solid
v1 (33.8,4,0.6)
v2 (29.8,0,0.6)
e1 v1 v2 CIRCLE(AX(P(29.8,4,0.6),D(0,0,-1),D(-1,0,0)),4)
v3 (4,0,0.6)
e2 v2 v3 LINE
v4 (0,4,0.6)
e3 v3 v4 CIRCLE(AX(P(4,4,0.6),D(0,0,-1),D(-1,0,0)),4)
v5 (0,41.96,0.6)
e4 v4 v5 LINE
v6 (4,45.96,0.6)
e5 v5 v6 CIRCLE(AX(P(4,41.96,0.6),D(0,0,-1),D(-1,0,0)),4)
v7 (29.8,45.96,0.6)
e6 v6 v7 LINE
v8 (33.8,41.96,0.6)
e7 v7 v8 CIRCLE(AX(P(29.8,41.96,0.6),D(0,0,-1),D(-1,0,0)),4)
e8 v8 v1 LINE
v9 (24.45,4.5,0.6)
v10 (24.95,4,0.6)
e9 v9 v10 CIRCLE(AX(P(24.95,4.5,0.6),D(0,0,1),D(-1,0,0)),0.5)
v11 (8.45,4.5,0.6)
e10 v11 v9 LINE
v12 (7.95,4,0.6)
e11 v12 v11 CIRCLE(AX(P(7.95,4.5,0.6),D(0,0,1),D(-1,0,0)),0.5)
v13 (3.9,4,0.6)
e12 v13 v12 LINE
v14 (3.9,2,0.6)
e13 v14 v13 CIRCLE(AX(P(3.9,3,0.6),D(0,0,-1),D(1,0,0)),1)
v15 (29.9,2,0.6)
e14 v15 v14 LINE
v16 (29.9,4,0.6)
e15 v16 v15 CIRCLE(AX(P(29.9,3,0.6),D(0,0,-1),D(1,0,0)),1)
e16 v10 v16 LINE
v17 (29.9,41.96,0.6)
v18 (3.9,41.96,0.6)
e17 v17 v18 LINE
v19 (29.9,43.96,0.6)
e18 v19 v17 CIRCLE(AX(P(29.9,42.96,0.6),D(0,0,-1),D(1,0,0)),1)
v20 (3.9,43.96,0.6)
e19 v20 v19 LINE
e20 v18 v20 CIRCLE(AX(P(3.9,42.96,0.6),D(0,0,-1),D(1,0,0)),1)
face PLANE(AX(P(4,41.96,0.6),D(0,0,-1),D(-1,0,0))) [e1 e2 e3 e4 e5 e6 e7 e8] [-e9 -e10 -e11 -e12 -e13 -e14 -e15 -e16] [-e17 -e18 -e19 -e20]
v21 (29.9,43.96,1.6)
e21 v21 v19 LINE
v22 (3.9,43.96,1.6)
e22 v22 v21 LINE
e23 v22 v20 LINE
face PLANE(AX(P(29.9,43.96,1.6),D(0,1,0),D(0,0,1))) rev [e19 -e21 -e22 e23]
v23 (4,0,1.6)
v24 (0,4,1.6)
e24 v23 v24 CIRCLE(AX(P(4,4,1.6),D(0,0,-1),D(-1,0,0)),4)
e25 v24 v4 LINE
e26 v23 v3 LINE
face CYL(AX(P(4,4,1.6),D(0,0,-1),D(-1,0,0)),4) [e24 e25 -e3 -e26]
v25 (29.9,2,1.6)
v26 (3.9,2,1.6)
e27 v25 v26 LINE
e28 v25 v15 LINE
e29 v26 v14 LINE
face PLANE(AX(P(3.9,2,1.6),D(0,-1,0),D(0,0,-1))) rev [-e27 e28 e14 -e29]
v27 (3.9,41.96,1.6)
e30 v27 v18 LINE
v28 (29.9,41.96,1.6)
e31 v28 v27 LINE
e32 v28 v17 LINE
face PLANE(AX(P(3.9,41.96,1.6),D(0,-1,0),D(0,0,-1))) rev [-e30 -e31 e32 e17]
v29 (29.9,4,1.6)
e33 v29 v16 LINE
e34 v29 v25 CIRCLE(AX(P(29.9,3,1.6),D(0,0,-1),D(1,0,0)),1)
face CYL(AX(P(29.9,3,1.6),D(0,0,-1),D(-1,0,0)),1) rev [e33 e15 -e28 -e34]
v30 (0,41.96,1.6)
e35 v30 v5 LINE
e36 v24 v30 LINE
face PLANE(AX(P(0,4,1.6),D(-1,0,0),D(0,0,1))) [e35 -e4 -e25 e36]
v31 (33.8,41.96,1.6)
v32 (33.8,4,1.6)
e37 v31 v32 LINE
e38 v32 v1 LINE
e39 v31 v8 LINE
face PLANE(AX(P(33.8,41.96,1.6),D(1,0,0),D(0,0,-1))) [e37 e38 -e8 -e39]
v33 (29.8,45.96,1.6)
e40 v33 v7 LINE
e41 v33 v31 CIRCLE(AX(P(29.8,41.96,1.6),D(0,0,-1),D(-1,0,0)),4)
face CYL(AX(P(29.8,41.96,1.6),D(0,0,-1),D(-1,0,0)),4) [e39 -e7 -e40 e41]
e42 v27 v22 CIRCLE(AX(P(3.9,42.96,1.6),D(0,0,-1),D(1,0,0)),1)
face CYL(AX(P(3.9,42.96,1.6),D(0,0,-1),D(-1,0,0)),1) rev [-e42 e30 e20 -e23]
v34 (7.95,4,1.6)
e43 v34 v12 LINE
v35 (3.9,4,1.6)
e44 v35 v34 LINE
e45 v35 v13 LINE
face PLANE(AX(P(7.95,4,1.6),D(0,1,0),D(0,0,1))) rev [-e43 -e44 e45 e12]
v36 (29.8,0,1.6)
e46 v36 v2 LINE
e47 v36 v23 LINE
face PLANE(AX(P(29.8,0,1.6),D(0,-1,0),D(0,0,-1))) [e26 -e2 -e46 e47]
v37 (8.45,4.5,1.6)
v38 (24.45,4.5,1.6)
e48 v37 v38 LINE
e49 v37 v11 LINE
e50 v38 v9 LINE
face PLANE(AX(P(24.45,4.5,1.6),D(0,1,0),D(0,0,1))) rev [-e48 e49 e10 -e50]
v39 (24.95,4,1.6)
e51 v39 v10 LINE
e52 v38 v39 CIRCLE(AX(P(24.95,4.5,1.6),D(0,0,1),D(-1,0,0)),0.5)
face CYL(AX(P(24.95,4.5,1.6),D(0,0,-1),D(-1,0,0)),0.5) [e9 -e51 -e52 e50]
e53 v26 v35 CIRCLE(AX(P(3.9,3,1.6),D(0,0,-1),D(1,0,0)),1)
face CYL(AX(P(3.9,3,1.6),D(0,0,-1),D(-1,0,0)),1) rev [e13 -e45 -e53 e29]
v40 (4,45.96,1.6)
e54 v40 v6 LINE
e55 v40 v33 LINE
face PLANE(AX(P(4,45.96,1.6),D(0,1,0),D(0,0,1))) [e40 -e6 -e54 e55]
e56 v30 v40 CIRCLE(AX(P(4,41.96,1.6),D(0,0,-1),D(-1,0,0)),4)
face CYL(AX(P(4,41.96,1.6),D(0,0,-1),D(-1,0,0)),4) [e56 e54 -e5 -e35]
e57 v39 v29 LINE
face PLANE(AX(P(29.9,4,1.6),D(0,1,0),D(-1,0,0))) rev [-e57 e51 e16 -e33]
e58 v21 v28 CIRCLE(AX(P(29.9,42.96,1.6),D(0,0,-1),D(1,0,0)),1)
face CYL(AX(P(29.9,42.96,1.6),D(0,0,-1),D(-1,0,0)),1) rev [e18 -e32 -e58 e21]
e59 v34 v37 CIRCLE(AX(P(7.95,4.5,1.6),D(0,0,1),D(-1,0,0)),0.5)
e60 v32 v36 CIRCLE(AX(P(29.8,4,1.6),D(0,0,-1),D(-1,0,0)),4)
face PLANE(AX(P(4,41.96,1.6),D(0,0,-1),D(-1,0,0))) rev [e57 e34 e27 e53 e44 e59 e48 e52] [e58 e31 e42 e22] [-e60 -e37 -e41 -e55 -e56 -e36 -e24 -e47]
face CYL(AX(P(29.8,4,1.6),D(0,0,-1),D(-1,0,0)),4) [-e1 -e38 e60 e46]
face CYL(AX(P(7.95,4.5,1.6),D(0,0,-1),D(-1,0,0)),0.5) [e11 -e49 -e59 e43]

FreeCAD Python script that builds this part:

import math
import FreeCAD as App
import Part
import Sketcher
Q = App.Units.Quantity

doc = App.newDocument("Part")
body = doc.addObject("PartDesign::Body", "Body")

sketch1 = body.newObject("Sketcher::SketchObject", "Sketch")
sketch1.AttachmentSupport = (doc.getObject("XY_Plane"), [""])
sketch1.MapMode = "FlatFace"
sketch1.AttachmentOffset = App.Placement(App.Vector(0, 0, 0.6), App.Rotation())
sketch1.addGeometry([
    Part.LineSegment(App.Vector(4, 45.96, 0), App.Vector(29.8, 45.96, 0)),
    Part.ArcOfCircle(Part.Circle(App.Vector(29.8, 41.96, 0), App.Vector(0, 0, 1), 4), math.radians(0), math.radians(90)),
    Part.LineSegment(App.Vector(33.8, 41.96, 0), App.Vector(33.8, 4, 0)),
    Part.ArcOfCircle(Part.Circle(App.Vector(29.8, 4, 0), App.Vector(0, 0, 1), 4), math.radians(-90), math.radians(0)),
    Part.LineSegment(App.Vector(29.8, 0, 0), App.Vector(4, 0, 0)),
    Part.ArcOfCircle(Part.Circle(App.Vector(4, 4, 0), App.Vector(0, 0, 1), 4), math.radians(180), math.radians(270)),
    Part.LineSegment(App.Vector(0, 4, 0), App.Vector(0, 41.96, 0)),
    Part.ArcOfCircle(Part.Circle(App.Vector(4, 41.96, 0), App.Vector(0, 0, 1), 4), math.radians(90), math.radians(180)),
    Part.ArcOfCircle(Part.Circle(App.Vector(7.95, 4.5, 0), App.Vector(0, 0, 1), 0.5), math.radians(-90), math.radians(0)),
    Part.LineSegment(App.Vector(7.95, 4, 0), App.Vector(3.9, 4, 0)),
    Part.ArcOfCircle(Part.Circle(App.Vector(3.9, 3, 0), App.Vector(0, 0, 1), 1), math.radians(90), math.radians(270)),
    Part.LineSegment(App.Vector(3.9, 2, 0), App.Vector(29.9, 2, 0)),
    Part.ArcOfCircle(Part.Circle(App.Vector(29.9, 3, 0), App.Vector(0, 0, 1), 1), math.radians(-90), math.radians(90)),
    Part.LineSegment(App.Vector(29.9, 4, 0), App.Vector(24.95, 4, 0)),
    Part.ArcOfCircle(Part.Circle(App.Vector(24.95, 4.5, 0), App.Vector(0, 0, 1), 0.5), math.radians(180), math.radians(270)),
    Part.LineSegment(App.Vector(24.45, 4.5, 0), App.Vector(8.45, 4.5, 0)),
    Part.ArcOfCircle(Part.Circle(App.Vector(3.9, 42.96, 0), App.Vector(0, 0, 1), 1), math.radians(90), math.radians(270)),
    Part.LineSegment(App.Vector(3.9, 41.96, 0), App.Vector(29.9, 41.96, 0)),
    Part.ArcOfCircle(Part.Circle(App.Vector(29.9, 42.96, 0), App.Vector(0, 0, 1), 1), math.radians(-90), math.radians(90)),
    Part.LineSegment(App.Vector(29.9, 43.96, 0), App.Vector(3.9, 43.96, 0)),
], False)
sketch1.addConstraint([
    Sketcher.Constraint("Tangent", 0, 2, 1, 2),
    Sketcher.Constraint("Tangent", 1, 1, 2, 1),
    Sketcher.Constraint("Tangent", 2, 2, 3, 2),
    Sketcher.Constraint("Tangent", 3, 1, 4, 1),
    Sketcher.Constraint("Tangent", 4, 2, 5, 2),
    Sketcher.Constraint("Tangent", 5, 1, 6, 1),
    Sketcher.Constraint("Tangent", 6, 2, 7, 2),
    Sketcher.Constraint("Tangent", 7, 1, 0, 1),
    Sketcher.Constraint("Tangent", 8, 1, 9, 1),
    Sketcher.Constraint("Tangent", 9, 2, 10, 1),
    Sketcher.Constraint("Tangent", 10, 2, 11, 1),
    Sketcher.Constraint("Tangent", 11, 2, 12, 1),
    Sketcher.Constraint("Tangent", 12, 2, 13, 1),
    Sketcher.Constraint("Tangent", 13, 2, 14, 2),
    Sketcher.Constraint("Coincident", 14, 1, 15, 1),
    Sketcher.Constraint("Coincident", 15, 2, 8, 2),
    Sketcher.Constraint("Tangent", 16, 2, 17, 1),
    Sketcher.Constraint("Tangent", 17, 2, 18, 1),
    Sketcher.Constraint("Tangent", 18, 2, 19, 1),
    Sketcher.Constraint("Tangent", 19, 2, 16, 1),
    Sketcher.Constraint("Horizontal", 0),
    Sketcher.Constraint("Vertical", 2),
    Sketcher.Constraint("Horizontal", 4),
    Sketcher.Constraint("Vertical", 6),
    Sketcher.Constraint("Horizontal", 9),
    Sketcher.Constraint("Horizontal", 11),
    Sketcher.Constraint("Horizontal", 13),
    Sketcher.Constraint("Horizontal", 15),
    Sketcher.Constraint("Horizontal", 17),
    Sketcher.Constraint("Horizontal", 19),
    Sketcher.Constraint("Equal", 1, 3),
    Sketcher.Constraint("Equal", 3, 5),
    Sketcher.Constraint("Equal", 5, 7),
    Sketcher.Constraint("Equal", 10, 12),
    Sketcher.Constraint("Equal", 8, 14),
    Sketcher.Constraint("Equal", 12, 16),
    Sketcher.Constraint("PointOnObject", 3, 1, -1),
    Sketcher.Constraint("PointOnObject", 5, 1, -2),
    Sketcher.Constraint("Horizontal", 5, 1, 8, 1),
    Sketcher.Constraint("Horizontal", 8, 3, 14, 1),
    Sketcher.Constraint("Horizontal", 6, 2, 16, 2),
    Sketcher.Constraint("Vertical", 10, 3, 16, 3),
    Sketcher.Constraint("Vertical", 12, 3, 18, 3),
    Sketcher.Constraint("Radius", 1, Q("4 mm")),
    Sketcher.Constraint("Radius", 10, Q("1 mm")),
    Sketcher.Constraint("Radius", 8, Q("0.5 mm")),
    Sketcher.Constraint("DistanceX", 11, 1, 11, 2, Q("26 mm")),
    Sketcher.Constraint("DistanceX", 15, 2, 15, 1, Q("16 mm")),
    Sketcher.Constraint("DistanceX", 0, 1, 0, 2, Q("25.8 mm")),
    Sketcher.Constraint("DistanceX", 9, 2, 9, 1, Q("4.05 mm")),
    Sketcher.Constraint("DistanceY", 2, 2, 2, 1, Q("37.96 mm")),
    Sketcher.Constraint("DistanceX", -1, 1, 10, 3, Q("3.9 mm")),
])
pad1 = body.newObject("PartDesign::Pad", "Pad")
pad1.Profile = sketch1
pad1.Length = 1

doc.recompute()
